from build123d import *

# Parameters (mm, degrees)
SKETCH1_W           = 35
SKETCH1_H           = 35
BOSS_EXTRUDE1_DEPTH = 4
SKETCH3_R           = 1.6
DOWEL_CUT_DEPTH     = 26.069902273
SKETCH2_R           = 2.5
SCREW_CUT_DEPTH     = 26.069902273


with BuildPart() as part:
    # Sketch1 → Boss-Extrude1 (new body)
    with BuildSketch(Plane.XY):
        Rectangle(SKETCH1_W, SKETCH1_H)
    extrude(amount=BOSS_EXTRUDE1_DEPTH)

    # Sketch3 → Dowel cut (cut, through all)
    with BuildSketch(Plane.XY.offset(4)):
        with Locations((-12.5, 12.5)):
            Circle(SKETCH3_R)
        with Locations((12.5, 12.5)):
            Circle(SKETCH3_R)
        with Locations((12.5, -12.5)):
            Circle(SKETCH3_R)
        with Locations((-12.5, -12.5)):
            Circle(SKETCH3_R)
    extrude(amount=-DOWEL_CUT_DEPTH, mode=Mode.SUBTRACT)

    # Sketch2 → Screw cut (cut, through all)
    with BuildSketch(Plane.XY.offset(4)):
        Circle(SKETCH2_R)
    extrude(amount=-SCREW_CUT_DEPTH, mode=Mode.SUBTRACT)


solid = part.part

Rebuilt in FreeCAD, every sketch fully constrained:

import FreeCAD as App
import Part
import Sketcher

V = App.Vector
Q = App.Units.Quantity


def add_polygon(sketch, points):
    """Adds a closed chain of lines whose ends are joined by coincident constraints."""
    first, n = sketch.GeometryCount, len(points)
    for a, b in zip(points, points[1:] + points[:1]):
        sketch.addGeometry(Part.LineSegment(App.Vector(*a, 0), App.Vector(*b, 0)), False)
    for i in range(n):
        sketch.addConstraint(Sketcher.Constraint("Coincident", first + i, 2, first + (i + 1) % n, 1))

doc = App.newDocument("Part")
body = doc.addObject("PartDesign::Body", "Body")

sketch1 = doc.addObject("Sketcher::SketchObject", "Sketch")
body.addObject(sketch1)
sketch1.AttachmentSupport = (doc.XY_Plane, [""])
sketch1.MapMode = "FlatFace"
add_polygon(sketch1, [(-17.5, 17.5), (-17.5, -17.5), (17.5, -17.5), (17.5, 17.5)])
sketch1.addConstraint(Sketcher.Constraint("Vertical", 0))
sketch1.addConstraint(Sketcher.Constraint("Horizontal", 1))
sketch1.addConstraint(Sketcher.Constraint("Vertical", 2))
sketch1.addConstraint(Sketcher.Constraint("Horizontal", 3))
sketch1.addConstraint(Sketcher.Constraint("Symmetric", 0, 2, 2, 2, -1, 1))
sketch1.addConstraint(Sketcher.Constraint("Equal", 3, 0))
sketch1.addConstraint(Sketcher.Constraint("DistanceX", 1, 1, 1, 2, Q("35 mm")))
pad1 = doc.addObject("PartDesign::Pad", "Pad")
body.addObject(pad1)
pad1.Profile = sketch1
pad1.Length = 4

sketch2 = doc.addObject("Sketcher::SketchObject", "Sketch001")
body.addObject(sketch2)
sketch2.AttachmentSupport = (doc.XY_Plane, [""])
sketch2.MapMode = "FlatFace"
sketch2.AttachmentOffset = App.Placement(V(0, 0, 4), App.Rotation())
sketch2.addGeometry(Part.Circle(V(-12.5, 12.5, 0), V(0, 0, 1), 1.6), False)
sketch2.addGeometry(Part.Circle(V(12.5, 12.5, 0), V(0, 0, 1), 1.6), False)
sketch2.addGeometry(Part.Circle(V(12.5, -12.5, 0), V(0, 0, 1), 1.6), False)
sketch2.addGeometry(Part.Circle(V(-12.5, -12.5, 0), V(0, 0, 1), 1.6), False)
sketch2.addConstraint(Sketcher.Constraint("Equal", 0, 1))
sketch2.addConstraint(Sketcher.Constraint("Equal", 1, 2))
sketch2.addConstraint(Sketcher.Constraint("Equal", 2, 3))
sketch2.addConstraint(Sketcher.Constraint("Symmetric", 0, 3, 2, 3, -1, 1))
sketch2.addConstraint(Sketcher.Constraint("Symmetric", 1, 3, 3, 3, -1, 1))
sketch2.addConstraint(Sketcher.Constraint("Symmetric", 0, 3, 1, 3, -2))
sketch2.addConstraint(Sketcher.Constraint("Diameter", 0, Q("3.2 mm")))
sketch2.addConstraint(Sketcher.Constraint("DistanceX", 0, 3, 1, 3, Q("25 mm")))
sketch2.addConstraint(Sketcher.Constraint("DistanceY", 2, 3, 1, 3, Q("25 mm")))
pocket1 = doc.addObject("PartDesign::Pocket", "Pocket")
body.addObject(pocket1)
pocket1.Profile = sketch2
pocket1.Type = "ThroughAll"

sketch3 = doc.addObject("Sketcher::SketchObject", "Sketch002")
body.addObject(sketch3)
sketch3.AttachmentSupport = (doc.XY_Plane, [""])
sketch3.MapMode = "FlatFace"
sketch3.AttachmentOffset = App.Placement(V(0, 0, 4), App.Rotation())
sketch3.addGeometry(Part.Circle(V(0, 0, 0), V(0, 0, 1), 2.5), False)
sketch3.addConstraint(Sketcher.Constraint("Coincident", 0, 3, -1, 1))
sketch3.addConstraint(Sketcher.Constraint("Diameter", 0, Q("5 mm")))
pocket2 = doc.addObject("PartDesign::Pocket", "Pocket001")
body.addObject(pocket2)
pocket2.Profile = sketch3
pocket2.Type = "ThroughAll"

doc.recompute()
